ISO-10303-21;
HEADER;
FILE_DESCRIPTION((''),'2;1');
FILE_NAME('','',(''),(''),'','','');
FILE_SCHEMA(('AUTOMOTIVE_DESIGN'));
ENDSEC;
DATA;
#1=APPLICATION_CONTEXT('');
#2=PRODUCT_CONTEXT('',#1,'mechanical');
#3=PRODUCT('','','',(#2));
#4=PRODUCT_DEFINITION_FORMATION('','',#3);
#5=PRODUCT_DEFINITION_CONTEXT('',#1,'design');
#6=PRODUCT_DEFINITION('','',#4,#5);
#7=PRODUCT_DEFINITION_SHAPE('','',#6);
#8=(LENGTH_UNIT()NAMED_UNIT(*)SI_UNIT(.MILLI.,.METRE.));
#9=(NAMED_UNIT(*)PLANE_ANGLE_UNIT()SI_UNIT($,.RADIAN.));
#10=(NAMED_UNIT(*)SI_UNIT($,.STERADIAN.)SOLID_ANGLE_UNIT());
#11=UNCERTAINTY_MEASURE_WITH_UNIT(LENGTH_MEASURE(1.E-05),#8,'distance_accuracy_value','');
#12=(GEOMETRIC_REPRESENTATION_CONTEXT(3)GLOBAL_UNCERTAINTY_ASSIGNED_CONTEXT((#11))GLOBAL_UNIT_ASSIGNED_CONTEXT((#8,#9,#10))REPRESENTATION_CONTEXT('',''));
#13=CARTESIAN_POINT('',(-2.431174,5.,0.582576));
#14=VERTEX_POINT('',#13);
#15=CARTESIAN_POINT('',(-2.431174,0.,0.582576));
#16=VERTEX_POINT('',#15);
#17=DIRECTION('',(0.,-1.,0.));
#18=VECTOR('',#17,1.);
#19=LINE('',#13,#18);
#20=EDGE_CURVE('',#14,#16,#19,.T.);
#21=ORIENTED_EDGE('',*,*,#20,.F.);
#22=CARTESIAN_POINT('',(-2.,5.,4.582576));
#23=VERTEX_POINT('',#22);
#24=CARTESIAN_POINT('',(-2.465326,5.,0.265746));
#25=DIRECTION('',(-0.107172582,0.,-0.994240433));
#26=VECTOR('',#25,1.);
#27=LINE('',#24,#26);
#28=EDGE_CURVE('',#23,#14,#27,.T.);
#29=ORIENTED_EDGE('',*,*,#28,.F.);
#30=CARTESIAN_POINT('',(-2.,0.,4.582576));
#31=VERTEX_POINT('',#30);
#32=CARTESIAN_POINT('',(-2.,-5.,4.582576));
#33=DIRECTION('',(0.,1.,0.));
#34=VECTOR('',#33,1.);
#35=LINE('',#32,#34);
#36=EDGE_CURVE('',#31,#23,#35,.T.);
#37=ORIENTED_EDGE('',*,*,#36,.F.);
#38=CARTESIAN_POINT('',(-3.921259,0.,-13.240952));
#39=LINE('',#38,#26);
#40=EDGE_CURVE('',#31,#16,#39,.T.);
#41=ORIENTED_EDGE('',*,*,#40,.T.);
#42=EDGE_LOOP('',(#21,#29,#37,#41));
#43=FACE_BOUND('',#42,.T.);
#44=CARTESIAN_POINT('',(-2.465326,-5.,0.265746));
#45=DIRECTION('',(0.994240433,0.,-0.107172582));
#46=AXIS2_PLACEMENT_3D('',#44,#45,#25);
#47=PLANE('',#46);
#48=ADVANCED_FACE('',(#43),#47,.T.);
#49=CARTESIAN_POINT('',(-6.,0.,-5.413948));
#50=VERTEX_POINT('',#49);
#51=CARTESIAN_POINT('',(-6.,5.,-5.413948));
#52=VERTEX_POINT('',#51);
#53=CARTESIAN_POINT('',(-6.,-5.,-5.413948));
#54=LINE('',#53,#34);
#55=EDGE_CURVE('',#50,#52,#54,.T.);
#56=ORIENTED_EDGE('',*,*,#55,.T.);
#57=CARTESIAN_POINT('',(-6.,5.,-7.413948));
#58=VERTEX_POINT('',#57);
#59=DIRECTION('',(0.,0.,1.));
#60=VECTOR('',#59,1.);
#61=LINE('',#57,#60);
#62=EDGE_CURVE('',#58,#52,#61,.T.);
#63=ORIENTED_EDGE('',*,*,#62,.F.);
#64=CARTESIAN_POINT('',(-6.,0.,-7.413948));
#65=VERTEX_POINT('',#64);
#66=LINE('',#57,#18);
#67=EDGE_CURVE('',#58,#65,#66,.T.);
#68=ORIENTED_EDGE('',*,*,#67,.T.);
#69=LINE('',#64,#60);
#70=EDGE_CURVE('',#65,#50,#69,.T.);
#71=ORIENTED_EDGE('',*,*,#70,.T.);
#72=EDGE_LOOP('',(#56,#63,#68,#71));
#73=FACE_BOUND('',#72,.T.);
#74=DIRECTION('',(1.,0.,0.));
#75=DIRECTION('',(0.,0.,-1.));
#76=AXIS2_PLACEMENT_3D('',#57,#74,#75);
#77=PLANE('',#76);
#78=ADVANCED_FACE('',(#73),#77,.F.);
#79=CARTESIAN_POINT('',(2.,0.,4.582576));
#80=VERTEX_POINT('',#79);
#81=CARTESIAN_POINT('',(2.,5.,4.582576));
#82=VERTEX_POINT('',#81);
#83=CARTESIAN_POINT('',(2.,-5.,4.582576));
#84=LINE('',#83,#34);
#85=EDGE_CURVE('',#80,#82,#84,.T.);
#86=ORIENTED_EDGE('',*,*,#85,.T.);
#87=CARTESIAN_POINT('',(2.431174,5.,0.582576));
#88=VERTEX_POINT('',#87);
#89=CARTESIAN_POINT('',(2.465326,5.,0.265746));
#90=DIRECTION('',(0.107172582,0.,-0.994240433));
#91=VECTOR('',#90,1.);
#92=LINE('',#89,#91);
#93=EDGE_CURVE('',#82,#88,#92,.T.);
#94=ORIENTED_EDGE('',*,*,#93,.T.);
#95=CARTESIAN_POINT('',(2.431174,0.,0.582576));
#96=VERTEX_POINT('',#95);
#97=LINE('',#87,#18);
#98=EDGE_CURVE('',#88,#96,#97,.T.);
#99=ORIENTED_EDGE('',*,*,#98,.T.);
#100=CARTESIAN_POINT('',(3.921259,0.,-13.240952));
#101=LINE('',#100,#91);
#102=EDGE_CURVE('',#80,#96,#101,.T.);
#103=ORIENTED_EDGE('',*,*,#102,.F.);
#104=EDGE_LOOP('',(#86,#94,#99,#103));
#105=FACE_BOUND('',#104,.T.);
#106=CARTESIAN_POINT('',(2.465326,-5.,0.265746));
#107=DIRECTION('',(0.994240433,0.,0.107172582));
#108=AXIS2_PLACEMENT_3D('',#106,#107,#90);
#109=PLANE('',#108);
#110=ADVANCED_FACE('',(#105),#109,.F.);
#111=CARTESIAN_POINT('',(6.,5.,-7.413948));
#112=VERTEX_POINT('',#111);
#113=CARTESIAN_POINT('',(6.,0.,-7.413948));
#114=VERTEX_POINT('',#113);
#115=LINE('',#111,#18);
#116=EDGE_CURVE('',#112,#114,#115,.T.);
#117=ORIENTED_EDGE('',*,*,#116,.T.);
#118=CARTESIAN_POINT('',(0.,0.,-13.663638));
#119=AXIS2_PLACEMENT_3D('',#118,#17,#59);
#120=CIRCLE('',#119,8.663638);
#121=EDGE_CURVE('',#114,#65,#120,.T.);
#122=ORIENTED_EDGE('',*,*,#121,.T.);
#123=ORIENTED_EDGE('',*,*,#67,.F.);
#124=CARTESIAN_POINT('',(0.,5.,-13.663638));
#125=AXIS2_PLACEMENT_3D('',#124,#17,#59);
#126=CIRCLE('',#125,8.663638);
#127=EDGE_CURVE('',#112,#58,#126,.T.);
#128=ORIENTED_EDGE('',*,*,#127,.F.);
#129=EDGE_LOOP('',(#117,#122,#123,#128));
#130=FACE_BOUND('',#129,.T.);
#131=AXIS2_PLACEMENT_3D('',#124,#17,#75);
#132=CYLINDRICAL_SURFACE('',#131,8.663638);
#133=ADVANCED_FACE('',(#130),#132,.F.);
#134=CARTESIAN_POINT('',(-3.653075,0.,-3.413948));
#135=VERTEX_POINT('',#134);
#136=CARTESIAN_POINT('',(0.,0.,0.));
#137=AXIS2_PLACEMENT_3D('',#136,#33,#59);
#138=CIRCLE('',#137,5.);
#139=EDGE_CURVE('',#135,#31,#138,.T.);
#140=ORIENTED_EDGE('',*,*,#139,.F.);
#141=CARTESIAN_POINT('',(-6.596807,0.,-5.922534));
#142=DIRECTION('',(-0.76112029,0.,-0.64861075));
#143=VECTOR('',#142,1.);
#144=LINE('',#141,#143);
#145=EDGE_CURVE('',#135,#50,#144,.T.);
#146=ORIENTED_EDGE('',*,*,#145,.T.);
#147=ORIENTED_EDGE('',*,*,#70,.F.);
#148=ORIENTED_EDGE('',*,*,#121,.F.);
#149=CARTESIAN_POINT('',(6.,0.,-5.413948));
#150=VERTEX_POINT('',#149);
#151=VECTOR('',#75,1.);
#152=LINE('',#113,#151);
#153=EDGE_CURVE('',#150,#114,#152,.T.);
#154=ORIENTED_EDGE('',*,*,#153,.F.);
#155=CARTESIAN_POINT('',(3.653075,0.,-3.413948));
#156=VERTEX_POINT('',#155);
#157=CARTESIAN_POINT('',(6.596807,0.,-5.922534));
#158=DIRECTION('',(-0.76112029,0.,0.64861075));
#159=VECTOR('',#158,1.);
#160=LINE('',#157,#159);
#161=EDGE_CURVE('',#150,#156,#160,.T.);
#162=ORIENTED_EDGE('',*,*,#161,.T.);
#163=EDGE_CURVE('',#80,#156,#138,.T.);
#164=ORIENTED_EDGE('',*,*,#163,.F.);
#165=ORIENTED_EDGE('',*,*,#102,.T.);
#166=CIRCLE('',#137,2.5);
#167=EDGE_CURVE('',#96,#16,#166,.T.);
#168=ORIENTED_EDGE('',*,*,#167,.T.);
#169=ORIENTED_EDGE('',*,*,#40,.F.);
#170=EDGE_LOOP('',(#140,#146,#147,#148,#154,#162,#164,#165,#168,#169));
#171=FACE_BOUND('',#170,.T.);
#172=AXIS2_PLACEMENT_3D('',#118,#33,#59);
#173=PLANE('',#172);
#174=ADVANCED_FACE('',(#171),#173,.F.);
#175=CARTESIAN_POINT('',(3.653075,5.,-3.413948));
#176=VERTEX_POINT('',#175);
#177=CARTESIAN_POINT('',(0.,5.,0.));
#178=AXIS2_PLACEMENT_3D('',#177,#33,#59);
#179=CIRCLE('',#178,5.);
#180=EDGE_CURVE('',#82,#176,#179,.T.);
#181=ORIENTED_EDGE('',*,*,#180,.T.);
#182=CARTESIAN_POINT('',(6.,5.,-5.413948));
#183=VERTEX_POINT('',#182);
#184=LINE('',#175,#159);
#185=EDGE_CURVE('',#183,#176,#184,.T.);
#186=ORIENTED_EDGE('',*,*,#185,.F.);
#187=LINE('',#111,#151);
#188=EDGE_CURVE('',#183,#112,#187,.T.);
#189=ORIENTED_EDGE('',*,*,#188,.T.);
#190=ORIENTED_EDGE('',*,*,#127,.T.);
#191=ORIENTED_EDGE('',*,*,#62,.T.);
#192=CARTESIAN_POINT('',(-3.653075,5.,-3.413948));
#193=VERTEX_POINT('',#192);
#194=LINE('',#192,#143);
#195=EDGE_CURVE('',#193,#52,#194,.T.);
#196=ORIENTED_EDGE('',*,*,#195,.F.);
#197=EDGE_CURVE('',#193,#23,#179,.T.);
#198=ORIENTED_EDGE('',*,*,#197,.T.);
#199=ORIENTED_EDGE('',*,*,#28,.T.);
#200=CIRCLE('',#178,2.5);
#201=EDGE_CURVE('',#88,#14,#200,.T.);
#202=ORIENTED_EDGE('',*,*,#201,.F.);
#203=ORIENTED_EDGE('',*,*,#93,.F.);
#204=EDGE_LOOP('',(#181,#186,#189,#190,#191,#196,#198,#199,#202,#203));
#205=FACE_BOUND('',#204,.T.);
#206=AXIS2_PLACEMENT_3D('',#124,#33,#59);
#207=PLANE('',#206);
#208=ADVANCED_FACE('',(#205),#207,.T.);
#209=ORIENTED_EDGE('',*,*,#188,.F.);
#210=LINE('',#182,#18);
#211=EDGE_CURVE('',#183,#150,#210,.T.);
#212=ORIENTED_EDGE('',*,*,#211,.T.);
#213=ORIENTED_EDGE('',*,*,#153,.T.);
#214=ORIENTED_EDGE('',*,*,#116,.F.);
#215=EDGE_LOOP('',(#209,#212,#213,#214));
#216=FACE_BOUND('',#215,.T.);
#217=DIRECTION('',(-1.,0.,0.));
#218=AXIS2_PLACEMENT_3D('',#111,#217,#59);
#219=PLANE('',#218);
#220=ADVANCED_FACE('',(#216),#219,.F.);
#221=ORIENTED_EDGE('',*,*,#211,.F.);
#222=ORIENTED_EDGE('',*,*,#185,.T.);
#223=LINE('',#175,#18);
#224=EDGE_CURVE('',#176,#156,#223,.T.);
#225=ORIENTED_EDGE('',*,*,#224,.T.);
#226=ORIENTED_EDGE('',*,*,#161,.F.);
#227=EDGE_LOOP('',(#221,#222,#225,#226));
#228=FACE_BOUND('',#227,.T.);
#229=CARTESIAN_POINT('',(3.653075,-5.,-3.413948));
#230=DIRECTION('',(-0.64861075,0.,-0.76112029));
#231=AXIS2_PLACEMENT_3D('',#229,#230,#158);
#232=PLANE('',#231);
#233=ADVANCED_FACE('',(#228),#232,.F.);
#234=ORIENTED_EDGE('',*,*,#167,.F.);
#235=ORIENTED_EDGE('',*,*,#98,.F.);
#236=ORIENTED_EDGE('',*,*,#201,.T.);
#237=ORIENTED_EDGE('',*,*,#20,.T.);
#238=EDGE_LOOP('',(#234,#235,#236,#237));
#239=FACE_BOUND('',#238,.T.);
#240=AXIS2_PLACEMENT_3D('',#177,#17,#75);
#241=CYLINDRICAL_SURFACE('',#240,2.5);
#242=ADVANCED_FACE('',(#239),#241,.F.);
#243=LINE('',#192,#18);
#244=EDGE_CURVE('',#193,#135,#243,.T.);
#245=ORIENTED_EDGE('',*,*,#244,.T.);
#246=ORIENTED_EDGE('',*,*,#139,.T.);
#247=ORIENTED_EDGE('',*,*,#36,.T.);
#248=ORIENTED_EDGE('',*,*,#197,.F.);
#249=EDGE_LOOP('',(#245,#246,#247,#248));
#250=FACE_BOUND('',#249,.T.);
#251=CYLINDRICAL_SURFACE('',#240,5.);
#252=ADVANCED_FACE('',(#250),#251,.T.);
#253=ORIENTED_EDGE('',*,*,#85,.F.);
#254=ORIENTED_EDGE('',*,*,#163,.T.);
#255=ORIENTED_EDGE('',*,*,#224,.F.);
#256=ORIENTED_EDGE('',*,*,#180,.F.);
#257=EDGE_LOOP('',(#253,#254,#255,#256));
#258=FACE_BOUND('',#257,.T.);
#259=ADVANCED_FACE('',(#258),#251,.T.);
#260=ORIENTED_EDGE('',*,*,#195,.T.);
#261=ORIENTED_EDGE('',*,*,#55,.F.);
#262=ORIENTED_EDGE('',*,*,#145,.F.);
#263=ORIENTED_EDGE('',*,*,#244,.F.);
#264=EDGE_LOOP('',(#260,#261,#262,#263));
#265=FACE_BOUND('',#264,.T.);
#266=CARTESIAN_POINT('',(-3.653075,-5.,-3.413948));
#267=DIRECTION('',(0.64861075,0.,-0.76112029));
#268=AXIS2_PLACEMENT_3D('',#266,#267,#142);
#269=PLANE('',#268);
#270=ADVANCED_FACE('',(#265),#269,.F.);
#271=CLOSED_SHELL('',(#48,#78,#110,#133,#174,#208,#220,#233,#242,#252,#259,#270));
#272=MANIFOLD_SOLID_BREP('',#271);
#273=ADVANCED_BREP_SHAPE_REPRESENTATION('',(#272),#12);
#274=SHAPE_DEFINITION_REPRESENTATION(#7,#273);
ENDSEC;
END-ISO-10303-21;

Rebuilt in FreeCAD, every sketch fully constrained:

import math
import FreeCAD as App
import Part
import Sketcher

V = App.Vector

doc = App.newDocument("Part")
body = doc.addObject("PartDesign::Body", "Body")

# Sketch on XZ plane
sketch1 = doc.addObject("Sketcher::SketchObject", "Sketch")
body.addObject(sketch1)
sketch1.AttachmentSupport = (doc.XZ_Plane, [""])
sketch1.MapMode = "FlatFace"
sketch1.addGeometry(Part.LineSegment(V(-6, -7.413948, 0), V(-6, -3.413948, 0)), False)
sketch1.addGeometry(Part.LineSegment(V(-6, -3.413948, 0), V(-3.653075, -3.413948, 0)), False)
sketch1.addGeometry(Part.ArcOfCircle(Part.Circle(V(0, 0, 0), V(0, 0, 1), 5), math.radians(-43.062018), math.radians(223.062018)), False)
sketch1.addGeometry(Part.LineSegment(V(3.653075, -3.413948, 0), V(6, -3.413948, 0)), False)
sketch1.addGeometry(Part.LineSegment(V(6, -3.413948, 0), V(6, -7.413948, 0)), False)
sketch1.addGeometry(Part.ArcOfCircle(Part.Circle(V(0, -13.663638, 0), V(0, 0, 1), 8.663638), math.radians(46.167722), math.radians(133.832278)), False)
sketch1.addGeometry(Part.Circle(V(0, 0, 0), V(0, 0, 1), 2.5), False)
sketch1.addConstraint(Sketcher.Constraint("Coincident", 0, 2, 1, 1))
sketch1.addConstraint(Sketcher.Constraint("Coincident", 1, 2, 2, 2))
sketch1.addConstraint(Sketcher.Constraint("Coincident", 2, 1, 3, 1))
sketch1.addConstraint(Sketcher.Constraint("Coincident", 3, 2, 4, 1))
sketch1.addConstraint(Sketcher.Constraint("Coincident", 4, 2, 5, 1))
sketch1.addConstraint(Sketcher.Constraint("Coincident", 5, 2, 0, 1))
sketch1.addConstraint(Sketcher.Constraint("Vertical", 0))
sketch1.addConstraint(Sketcher.Constraint("Horizontal", 1))
sketch1.addConstraint(Sketcher.Constraint("Horizontal", 3))
sketch1.addConstraint(Sketcher.Constraint("Vertical", 4))
sketch1.addConstraint(Sketcher.Constraint("Coincident", 2, 3, -1, 1))
sketch1.addConstraint(Sketcher.Constraint("Coincident", 6, 3, -1, 1))
sketch1.addConstraint(Sketcher.Constraint("Symmetric", 0, 2, 3, 2, -2))
sketch1.addConstraint(Sketcher.Constraint("PointOnObject", 5, 3, -2))
sketch1.addConstraint(Sketcher.Constraint("Diameter", 6, 5.0))
sketch1.addConstraint(Sketcher.Constraint("Radius", 2, 5.0))
sketch1.addConstraint(Sketcher.Constraint("DistanceY", 0, 1, 0, 2, 4.0))
sketch1.addConstraint(Sketcher.Constraint("DistanceX", 0, 2, -1, 1, 6.0))
sketch1.addConstraint(Sketcher.Constraint("Radius", 5, 8.663638))
sketch1.addConstraint(Sketcher.Constraint("DistanceX", 1, 1, 1, 2, 2.346925))
pad1 = doc.addObject("PartDesign::Pad", "Pad")
body.addObject(pad1)
pad1.Profile = sketch1
pad1.Length = 5
pad1.Reversed = True

# Sketch on XZ plane
sketch2 = doc.addObject("Sketcher::SketchObject", "Sketch001")
body.addObject(sketch2)
sketch2.AttachmentSupport = (doc.XZ_Plane, [""])
sketch2.MapMode = "FlatFace"
sketch2.AttachmentOffset = App.Placement(V(0, 0, 5), App.Rotation())
sketch2.addGeometry(Part.ArcOfCircle(Part.Circle(V(0, 0, 0), V(0, 0, 1), 2.5), math.radians(13.475543), math.radians(90)), False)
sketch2.addGeometry(Part.ArcOfCircle(Part.Circle(V(0, 0, 0), V(0, 0, 1), 2.5), math.radians(90), math.radians(166.524457)), False)
sketch2.addGeometry(Part.LineSegment(V(-2.431174, 0.582576, 0), V(-2, 4.582576, 0)), False)
sketch2.addGeometry(Part.ArcOfCircle(Part.Circle(V(0, 0, 0), V(0, 0, 1), 5), math.radians(90), math.radians(113.578179)), False)
sketch2.addGeometry(Part.ArcOfCircle(Part.Circle(V(0, 0, 0), V(0, 0, 1), 5), math.radians(66.421821), math.radians(90)), False)
sketch2.addGeometry(Part.LineSegment(V(2, 4.582576, 0), V(2.431174, 0.582576, 0)), False)
sketch2.addConstraint(Sketcher.Constraint("Tangent", 0, 2, 1, 1))
sketch2.addConstraint(Sketcher.Constraint("Coincident", 1, 2, 2, 1))
sketch2.addConstraint(Sketcher.Constraint("Coincident", 2, 2, 3, 2))
sketch2.addConstraint(Sketcher.Constraint("Tangent", 3, 1, 4, 2))
sketch2.addConstraint(Sketcher.Constraint("Coincident", 4, 1, 5, 1))
sketch2.addConstraint(Sketcher.Constraint("Coincident", 5, 2, 0, 1))
sketch2.addConstraint(Sketcher.Constraint("Coincident", 0, 3, -1, 1))
sketch2.addConstraint(Sketcher.Constraint("Coincident", 3, 3, -1, 1))
sketch2.addConstraint(Sketcher.Constraint("Equal", 0, 1))
sketch2.addConstraint(Sketcher.Constraint("Equal", 3, 4))
sketch2.addConstraint(Sketcher.Constraint("PointOnObject", 0, 2, -2))
sketch2.addConstraint(Sketcher.Constraint("PointOnObject", 3, 1, -2))
sketch2.addConstraint(Sketcher.Constraint("Horizontal", 2, 2, 4, 1))
sketch2.addConstraint(Sketcher.Constraint("Horizontal", 1, 2, 5, 2))
sketch2.addConstraint(Sketcher.Constraint("Radius", 3, 5.0))
sketch2.addConstraint(Sketcher.Constraint("Radius", 0, 2.5))
sketch2.addConstraint(Sketcher.Constraint("DistanceX", 2, 2, -1, 1, 2.0))
sketch2.addConstraint(Sketcher.Constraint("DistanceY", 1, 2, 2, 2, 4.0))
pocket1 = doc.addObject("PartDesign::Pocket", "Pocket")
body.addObject(pocket1)
pocket1.Profile = sketch2
pocket1.Length = 10

# Sketch on XZ plane
sketch3 = doc.addObject("Sketcher::SketchObject", "Sketch002")
body.addObject(sketch3)
sketch3.AttachmentSupport = (doc.XZ_Plane, [""])
sketch3.MapMode = "FlatFace"
sketch3.AttachmentOffset = App.Placement(V(0, 0, -5), App.Rotation())
sketch3.addGeometry(Part.LineSegment(V(6, -5.413948, 0), V(3.653075, -3.413948, 0)), False)
sketch3.addGeometry(Part.LineSegment(V(3.653075, -3.413948, 0), V(6, -3.413948, 0)), False)
sketch3.addGeometry(Part.LineSegment(V(6, -3.413948, 0), V(6, -5.413948, 0)), False)
sketch3.addGeometry(Part.LineSegment(V(-3.653075, -3.413948, 0), V(-6, -5.413948, 0)), False)
sketch3.addGeometry(Part.LineSegment(V(-6, -5.413948, 0), V(-6, -3.413948, 0)), False)
sketch3.addGeometry(Part.LineSegment(V(-6, -3.413948, 0), V(-3.653075, -3.413948, 0)), False)
sketch3.addConstraint(Sketcher.Constraint("Coincident", 0, 2, 1, 1))
sketch3.addConstraint(Sketcher.Constraint("Coincident", 1, 2, 2, 1))
sketch3.addConstraint(Sketcher.Constraint("Coincident", 2, 2, 0, 1))
sketch3.addConstraint(Sketcher.Constraint("Coincident", 3, 2, 4, 1))
sketch3.addConstraint(Sketcher.Constraint("Coincident", 4, 2, 5, 1))
sketch3.addConstraint(Sketcher.Constraint("Coincident", 5, 2, 3, 1))
sketch3.addConstraint(Sketcher.Constraint("Horizontal", 1))
sketch3.addConstraint(Sketcher.Constraint("Vertical", 2))
sketch3.addConstraint(Sketcher.Constraint("Vertical", 4))
sketch3.addConstraint(Sketcher.Constraint("Horizontal", 5))
sketch3.addConstraint(Sketcher.Constraint("Symmetric", 2, 2, 3, 2, -2))
sketch3.addConstraint(Sketcher.Constraint("Symmetric", 0, 2, 5, 2, -2))
sketch3.addConstraint(Sketcher.Constraint("DistanceY", 2, 2, 2, 1, 2.0))
sketch3.addConstraint(Sketcher.Constraint("DistanceX", -1, 1, 1, 2, 6.0))
sketch3.addConstraint(Sketcher.Constraint("DistanceX", 1, 1, 1, 2, 2.346925))
sketch3.addConstraint(Sketcher.Constraint("DistanceY", 0, 2, -1, 1, 3.413948))
pocket2 = doc.addObject("PartDesign::Pocket", "Pocket001")
body.addObject(pocket2)
pocket2.Profile = sketch3
pocket2.Length = 10
pocket2.Reversed = True

doc.recompute()
